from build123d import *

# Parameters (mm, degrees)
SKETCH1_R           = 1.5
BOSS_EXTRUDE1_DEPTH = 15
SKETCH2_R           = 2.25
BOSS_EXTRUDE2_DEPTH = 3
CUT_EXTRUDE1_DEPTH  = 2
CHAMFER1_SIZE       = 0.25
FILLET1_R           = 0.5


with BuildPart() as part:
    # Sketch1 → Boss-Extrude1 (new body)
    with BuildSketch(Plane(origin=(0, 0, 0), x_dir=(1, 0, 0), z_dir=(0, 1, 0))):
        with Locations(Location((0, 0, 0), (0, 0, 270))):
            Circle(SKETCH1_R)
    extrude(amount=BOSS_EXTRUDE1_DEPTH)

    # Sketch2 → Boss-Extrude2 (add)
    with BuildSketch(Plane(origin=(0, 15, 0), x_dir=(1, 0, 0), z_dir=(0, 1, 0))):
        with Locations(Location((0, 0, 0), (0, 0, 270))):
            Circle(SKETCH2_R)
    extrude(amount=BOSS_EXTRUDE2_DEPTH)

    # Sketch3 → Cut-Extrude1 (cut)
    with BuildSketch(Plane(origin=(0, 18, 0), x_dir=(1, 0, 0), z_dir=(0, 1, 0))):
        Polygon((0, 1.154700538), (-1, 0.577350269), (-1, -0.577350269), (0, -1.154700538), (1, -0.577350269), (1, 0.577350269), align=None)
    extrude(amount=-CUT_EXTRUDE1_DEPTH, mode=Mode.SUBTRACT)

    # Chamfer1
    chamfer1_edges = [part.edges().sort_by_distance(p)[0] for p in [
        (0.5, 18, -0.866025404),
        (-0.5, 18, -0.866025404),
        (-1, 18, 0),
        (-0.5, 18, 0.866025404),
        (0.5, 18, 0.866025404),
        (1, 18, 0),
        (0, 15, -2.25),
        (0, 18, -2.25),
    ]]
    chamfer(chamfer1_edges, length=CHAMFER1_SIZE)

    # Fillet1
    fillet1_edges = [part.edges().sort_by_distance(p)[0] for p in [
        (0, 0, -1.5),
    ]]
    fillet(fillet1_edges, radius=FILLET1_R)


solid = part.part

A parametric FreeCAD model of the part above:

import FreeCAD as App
import Part
import Sketcher
from FreeCAD import Vector
Q = App.Units.Quantity


def edges_at(feature, points):
    """Names of the edges that pass closest to the given points."""
    edges = feature.Shape.Edges
    near = lambda p: min(range(len(edges)), key=lambda i: edges[i].distToShape(Part.Vertex(*p))[0])
    return sorted({f"Edge{near(p) + 1}" for p in points})

doc = App.newDocument("Part")
params = doc.addObject("Spreadsheet::Sheet", "Params")
for row, (alias, value) in enumerate([
    ("sketch1_diameter", "3 mm"),
    ("pad1_length", "15 mm"),
    ("sketch2_diameter", "4.5 mm"),
    ("pad2_length", "3 mm"),
    ("pocket1_length", "2 mm"),
    ("chamfer_size", "0.25 mm"),
    ("fillet_radius", "0.5 mm"),
], start=1):
    params.set(f"A{row}", alias)
    params.set(f"B{row}", "=" + value)
    params.setAlias(f"B{row}", alias)

body = doc.addObject("PartDesign::Body", "Body")

sketch1 = body.newObject("Sketcher::SketchObject", "Sketch")
sketch1.AttachmentSupport = (doc.getObject("XZ_Plane"), [""])
sketch1.MapMode = "FlatFace"
sketch1.addGeometry(Part.Circle(Vector(0, 0, 0), Vector(0, 0, 1), 1.5), False)
sketch1.addConstraint([
    Sketcher.Constraint("Coincident", 0, 3, -1, 1),
    Sketcher.Constraint("Diameter", 0, 3.0),
])
sketch1.setExpression("Constraints[1]", "Params.sketch1_diameter")
pad1 = body.newObject("PartDesign::Pad", "Pad")
pad1.Profile = sketch1
pad1.setExpression("Length", "Params.pad1_length")
pad1.Reversed = True

sketch2 = body.newObject("Sketcher::SketchObject", "Sketch001")
sketch2.AttachmentSupport = (doc.getObject("XZ_Plane"), [""])
sketch2.MapMode = "FlatFace"
sketch2.AttachmentOffset = App.Placement(Vector(0, 0, -15), App.Rotation())
sketch2.addGeometry(Part.Circle(Vector(0, 0, 0), Vector(0, 0, 1), 2.2), False)
sketch2.addConstraint([
    Sketcher.Constraint("Coincident", 0, 3, -1, 1),
    Sketcher.Constraint("Diameter", 0, 4.5),
])
sketch2.setExpression("Constraints[1]", "Params.sketch2_diameter")
pad2 = body.newObject("PartDesign::Pad", "Pad001")
pad2.Profile = sketch2
pad2.setExpression("Length", "Params.pad2_length")
pad2.Reversed = True

sketch3 = body.newObject("Sketcher::SketchObject", "Sketch002")
sketch3.AttachmentSupport = (doc.getObject("XZ_Plane"), [""])
sketch3.MapMode = "FlatFace"
sketch3.AttachmentOffset = App.Placement(Vector(0, 0, -18), App.Rotation())
sketch3.addGeometry([
    Part.LineSegment(Vector(0, -1.2, 0), Vector(-1, -0.6, 0)),
    Part.LineSegment(Vector(-1, -0.6, 0), Vector(-1, 0.6, 0)),
    Part.LineSegment(Vector(-1, 0.6, 0), Vector(0, 1.2, 0)),
    Part.LineSegment(Vector(0, 1.2, 0), Vector(1, 0.6, 0)),
    Part.LineSegment(Vector(1, 0.6, 0), Vector(1, -0.6, 0)),
    Part.LineSegment(Vector(1, -0.6, 0), Vector(0, -1.2, 0)),
], False)
sketch3.addConstraint([
    Sketcher.Constraint("Coincident", 0, 2, 1, 1),
    Sketcher.Constraint("Coincident", 1, 2, 2, 1),
    Sketcher.Constraint("Coincident", 2, 2, 3, 1),
    Sketcher.Constraint("Coincident", 3, 2, 4, 1),
    Sketcher.Constraint("Coincident", 4, 2, 5, 1),
    Sketcher.Constraint("Coincident", 5, 2, 0, 1),
    Sketcher.Constraint("Vertical", 1),
    Sketcher.Constraint("Vertical", 4),
    Sketcher.Constraint("Symmetric", 0, 2, 3, 2, -1, 1),
    Sketcher.Constraint("Symmetric", 2, 2, 5, 2, -1, 1),
    Sketcher.Constraint("PointOnObject", 2, 2, -2),
    Sketcher.Constraint("Parallel", 2, 5),
    Sketcher.Constraint("Horizontal", 1, 2, 3, 2),
    Sketcher.Constraint("Angle", 0, Q("150 deg")),
    Sketcher.Constraint("DistanceX", 0, 2, -1, 1, 1.0),
    Sketcher.Constraint("DistanceY", 1, 1, 1, 2, 1.154701),
])
pocket1 = body.newObject("PartDesign::Pocket", "Pocket")
pocket1.Profile = sketch3
pocket1.setExpression("Length", "Params.pocket1_length")
pocket1.Reversed = True
doc.recompute()

chamfer = body.newObject("PartDesign::Chamfer", "Chamfer")
chamfer.Base = (pocket1, edges_at(pocket1, [
    (0.5, 18, -0.866),
    (-0.5, 18, -0.866),
    (-1, 18, 0),
    (-0.5, 18, 0.866),
    (0.5, 18, 0.866),
    (1, 18, 0),
    (0, 15, -2.25),
    (0, 18, -2.25),
]))
chamfer.setExpression("Size", "Params.chamfer_size")
doc.recompute()

fillet = body.newObject("PartDesign::Fillet", "Fillet")
fillet.Base = (chamfer, edges_at(chamfer, [(0, 0, -1.5)]))
fillet.setExpression("Radius", "Params.fillet_radius")

doc.recompute()
